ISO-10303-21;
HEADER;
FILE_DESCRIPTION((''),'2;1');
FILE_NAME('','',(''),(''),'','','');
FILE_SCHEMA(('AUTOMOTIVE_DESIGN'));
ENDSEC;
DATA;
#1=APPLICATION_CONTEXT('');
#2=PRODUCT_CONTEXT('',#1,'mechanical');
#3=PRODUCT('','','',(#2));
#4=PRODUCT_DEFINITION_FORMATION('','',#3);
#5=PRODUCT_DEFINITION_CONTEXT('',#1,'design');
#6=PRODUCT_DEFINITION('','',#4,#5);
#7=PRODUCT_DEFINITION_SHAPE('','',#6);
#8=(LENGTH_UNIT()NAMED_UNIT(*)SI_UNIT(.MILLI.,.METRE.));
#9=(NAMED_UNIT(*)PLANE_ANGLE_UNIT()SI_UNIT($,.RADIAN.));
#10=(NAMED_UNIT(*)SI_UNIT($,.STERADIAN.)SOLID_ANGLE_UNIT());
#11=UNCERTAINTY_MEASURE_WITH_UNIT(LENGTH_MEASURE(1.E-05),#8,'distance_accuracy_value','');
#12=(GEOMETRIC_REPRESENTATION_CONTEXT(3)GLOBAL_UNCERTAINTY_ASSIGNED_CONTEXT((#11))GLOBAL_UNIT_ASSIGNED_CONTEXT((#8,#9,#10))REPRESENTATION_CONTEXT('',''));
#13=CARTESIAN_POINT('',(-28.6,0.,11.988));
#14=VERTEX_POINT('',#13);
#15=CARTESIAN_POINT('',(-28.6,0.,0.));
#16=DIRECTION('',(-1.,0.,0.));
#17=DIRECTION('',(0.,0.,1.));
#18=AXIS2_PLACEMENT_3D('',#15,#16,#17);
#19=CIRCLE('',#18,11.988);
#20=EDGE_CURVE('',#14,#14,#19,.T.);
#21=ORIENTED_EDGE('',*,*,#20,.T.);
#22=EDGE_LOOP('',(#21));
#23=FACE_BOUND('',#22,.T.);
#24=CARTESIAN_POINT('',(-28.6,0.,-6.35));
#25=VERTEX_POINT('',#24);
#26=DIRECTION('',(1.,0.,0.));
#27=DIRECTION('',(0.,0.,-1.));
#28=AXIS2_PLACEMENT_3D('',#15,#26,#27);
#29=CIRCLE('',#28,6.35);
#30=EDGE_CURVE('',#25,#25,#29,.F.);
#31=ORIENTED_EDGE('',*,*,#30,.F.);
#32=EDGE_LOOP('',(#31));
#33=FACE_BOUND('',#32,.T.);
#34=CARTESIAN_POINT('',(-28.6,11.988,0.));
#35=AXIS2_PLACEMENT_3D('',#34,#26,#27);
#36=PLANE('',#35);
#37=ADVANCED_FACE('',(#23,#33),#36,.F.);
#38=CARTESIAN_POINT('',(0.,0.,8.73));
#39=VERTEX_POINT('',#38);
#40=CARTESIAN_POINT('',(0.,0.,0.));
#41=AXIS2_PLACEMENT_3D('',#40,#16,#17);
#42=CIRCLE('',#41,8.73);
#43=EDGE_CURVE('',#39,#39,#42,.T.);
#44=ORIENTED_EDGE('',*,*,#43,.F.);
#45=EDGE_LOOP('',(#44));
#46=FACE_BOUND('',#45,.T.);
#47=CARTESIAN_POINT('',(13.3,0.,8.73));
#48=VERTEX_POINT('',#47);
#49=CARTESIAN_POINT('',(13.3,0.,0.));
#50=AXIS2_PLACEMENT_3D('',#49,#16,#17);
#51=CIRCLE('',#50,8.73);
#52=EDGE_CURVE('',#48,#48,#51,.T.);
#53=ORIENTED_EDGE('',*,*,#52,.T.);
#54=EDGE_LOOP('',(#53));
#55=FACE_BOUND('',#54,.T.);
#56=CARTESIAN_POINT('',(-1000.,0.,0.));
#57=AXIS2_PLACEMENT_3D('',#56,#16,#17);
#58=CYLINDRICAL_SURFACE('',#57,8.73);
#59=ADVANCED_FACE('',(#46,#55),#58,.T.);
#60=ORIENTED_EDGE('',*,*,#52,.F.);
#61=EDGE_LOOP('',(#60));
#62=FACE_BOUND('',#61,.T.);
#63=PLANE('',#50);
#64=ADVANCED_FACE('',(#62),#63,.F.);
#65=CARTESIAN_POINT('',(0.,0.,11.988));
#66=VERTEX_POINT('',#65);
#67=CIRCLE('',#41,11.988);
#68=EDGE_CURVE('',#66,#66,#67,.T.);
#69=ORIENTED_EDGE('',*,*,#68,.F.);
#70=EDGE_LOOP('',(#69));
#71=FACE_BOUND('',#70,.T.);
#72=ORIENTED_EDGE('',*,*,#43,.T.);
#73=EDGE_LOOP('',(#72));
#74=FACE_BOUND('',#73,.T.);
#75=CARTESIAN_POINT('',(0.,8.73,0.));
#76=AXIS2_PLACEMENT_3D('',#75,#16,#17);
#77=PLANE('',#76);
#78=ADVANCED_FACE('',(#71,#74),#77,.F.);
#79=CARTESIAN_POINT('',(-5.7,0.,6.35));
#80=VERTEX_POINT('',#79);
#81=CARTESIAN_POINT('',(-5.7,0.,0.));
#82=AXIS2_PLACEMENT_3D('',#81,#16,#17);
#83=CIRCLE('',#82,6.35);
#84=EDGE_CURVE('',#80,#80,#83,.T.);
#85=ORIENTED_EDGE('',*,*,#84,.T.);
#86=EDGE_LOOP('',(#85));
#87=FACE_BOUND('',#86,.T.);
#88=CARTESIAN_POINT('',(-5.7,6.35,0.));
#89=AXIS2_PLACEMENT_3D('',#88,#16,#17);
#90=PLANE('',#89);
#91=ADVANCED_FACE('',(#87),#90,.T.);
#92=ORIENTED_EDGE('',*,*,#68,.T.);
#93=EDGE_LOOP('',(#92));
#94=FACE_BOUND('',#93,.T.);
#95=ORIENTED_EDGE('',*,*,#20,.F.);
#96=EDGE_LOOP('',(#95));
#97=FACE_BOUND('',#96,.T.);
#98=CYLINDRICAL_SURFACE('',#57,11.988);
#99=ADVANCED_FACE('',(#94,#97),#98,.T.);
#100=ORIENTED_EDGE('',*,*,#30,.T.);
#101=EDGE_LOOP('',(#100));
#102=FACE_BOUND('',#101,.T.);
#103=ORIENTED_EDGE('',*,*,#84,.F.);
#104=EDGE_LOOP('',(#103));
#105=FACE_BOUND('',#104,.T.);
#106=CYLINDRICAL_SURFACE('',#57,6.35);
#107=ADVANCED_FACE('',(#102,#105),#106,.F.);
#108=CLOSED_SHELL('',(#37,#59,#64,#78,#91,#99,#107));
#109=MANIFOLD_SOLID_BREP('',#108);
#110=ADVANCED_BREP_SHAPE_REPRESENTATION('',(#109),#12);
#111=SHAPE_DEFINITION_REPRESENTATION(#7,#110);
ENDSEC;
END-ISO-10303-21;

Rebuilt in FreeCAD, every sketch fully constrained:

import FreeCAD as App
import Part
import Sketcher

doc = App.newDocument("Part")
body = doc.addObject("PartDesign::Body", "Body")

# Sketch on XY plane
sketch1 = doc.addObject("Sketcher::SketchObject", "Sketch")
body.addObject(sketch1)
sketch1.AttachmentSupport = (doc.XY_Plane, [""])
sketch1.MapMode = "FlatFace"
sketch1.addGeometry([
    Part.LineSegment(App.Vector(13.3, 0, 0), App.Vector(13.3, 8.73, 0)),  # 0
    Part.LineSegment(App.Vector(13.3, 8.73, 0), App.Vector(0, 8.73, 0)),  # 1
    Part.LineSegment(App.Vector(0, 8.73, 0), App.Vector(0, 11.988, 0)),  # 2
    Part.LineSegment(App.Vector(0, 11.988, 0), App.Vector(-28.6, 11.988, 0)),  # 3
    Part.LineSegment(App.Vector(-28.6, 11.988, 0), App.Vector(-28.6, 0, 0)),  # 4
    Part.LineSegment(App.Vector(-28.6, 0, 0), App.Vector(13.3, 0, 0)),  # 5
], False)
sketch1.addConstraint([
    Sketcher.Constraint("Coincident", 0, 2, 1, 1),
    Sketcher.Constraint("Coincident", 1, 2, 2, 1),
    Sketcher.Constraint("Coincident", 2, 2, 3, 1),
    Sketcher.Constraint("Coincident", 3, 2, 4, 1),
    Sketcher.Constraint("Coincident", 4, 2, 5, 1),
    Sketcher.Constraint("Coincident", 5, 2, 0, 1),
    Sketcher.Constraint("Vertical", 0),
    Sketcher.Constraint("Horizontal", 1),
    Sketcher.Constraint("Vertical", 2),
    Sketcher.Constraint("Horizontal", 3),
    Sketcher.Constraint("Vertical", 4),
    Sketcher.Constraint("Horizontal", 5),
    Sketcher.Constraint("PointOnObject", 1, 2, -2),
    Sketcher.Constraint("PointOnObject", 4, 2, -1),
    Sketcher.Constraint("DistanceX", 1, 2, 1, 1, 13.3),
    Sketcher.Constraint("DistanceX", 3, 2, 3, 1, 28.6),
    Sketcher.Constraint("DistanceY", 0, 1, 0, 2, 8.73),
    Sketcher.Constraint("DistanceY", 2, 1, 2, 2, 3.258),
])
revolution = doc.addObject("PartDesign::Revolution", "Revolution")
body.addObject(revolution)
revolution.Profile = sketch1
revolution.ReferenceAxis = (sketch1, ["H_Axis"])
revolution.Angle = 360

# Sketch on XY plane
sketch2 = doc.addObject("Sketcher::SketchObject", "Sketch001")
body.addObject(sketch2)
sketch2.AttachmentSupport = (doc.XY_Plane, [""])
sketch2.MapMode = "FlatFace"
sketch2.addGeometry([
    Part.LineSegment(App.Vector(-29.6, 6.35, 0), App.Vector(-29.6, 0, 0)),
    Part.LineSegment(App.Vector(-29.6, 0, 0), App.Vector(-5.7, 0, 0)),
    Part.LineSegment(App.Vector(-5.7, 0, 0), App.Vector(-5.7, 6.35, 0)),
    Part.LineSegment(App.Vector(-5.7, 6.35, 0), App.Vector(-29.6, 6.35, 0)),
], False)
sketch2.addConstraint([
    Sketcher.Constraint("Coincident", 0, 2, 1, 1),
    Sketcher.Constraint("Coincident", 1, 2, 2, 1),
    Sketcher.Constraint("Coincident", 2, 2, 3, 1),
    Sketcher.Constraint("Coincident", 3, 2, 0, 1),
    Sketcher.Constraint("Vertical", 0),
    Sketcher.Constraint("Horizontal", 1),
    Sketcher.Constraint("Vertical", 2),
    Sketcher.Constraint("Horizontal", 3),
    Sketcher.Constraint("PointOnObject", 0, 2, -1),
    Sketcher.Constraint("DistanceX", 1, 1, 1, 2, 23.9),
    Sketcher.Constraint("DistanceY", 0, 2, 0, 1, 6.35),
    Sketcher.Constraint("DistanceX", 0, 2, -1, 1, 29.6),
])
groove = doc.addObject("PartDesign::Groove", "Groove")
body.addObject(groove)
groove.Profile = sketch2
groove.ReferenceAxis = (sketch2, ["H_Axis"])
groove.Angle = 360

doc.recompute()
